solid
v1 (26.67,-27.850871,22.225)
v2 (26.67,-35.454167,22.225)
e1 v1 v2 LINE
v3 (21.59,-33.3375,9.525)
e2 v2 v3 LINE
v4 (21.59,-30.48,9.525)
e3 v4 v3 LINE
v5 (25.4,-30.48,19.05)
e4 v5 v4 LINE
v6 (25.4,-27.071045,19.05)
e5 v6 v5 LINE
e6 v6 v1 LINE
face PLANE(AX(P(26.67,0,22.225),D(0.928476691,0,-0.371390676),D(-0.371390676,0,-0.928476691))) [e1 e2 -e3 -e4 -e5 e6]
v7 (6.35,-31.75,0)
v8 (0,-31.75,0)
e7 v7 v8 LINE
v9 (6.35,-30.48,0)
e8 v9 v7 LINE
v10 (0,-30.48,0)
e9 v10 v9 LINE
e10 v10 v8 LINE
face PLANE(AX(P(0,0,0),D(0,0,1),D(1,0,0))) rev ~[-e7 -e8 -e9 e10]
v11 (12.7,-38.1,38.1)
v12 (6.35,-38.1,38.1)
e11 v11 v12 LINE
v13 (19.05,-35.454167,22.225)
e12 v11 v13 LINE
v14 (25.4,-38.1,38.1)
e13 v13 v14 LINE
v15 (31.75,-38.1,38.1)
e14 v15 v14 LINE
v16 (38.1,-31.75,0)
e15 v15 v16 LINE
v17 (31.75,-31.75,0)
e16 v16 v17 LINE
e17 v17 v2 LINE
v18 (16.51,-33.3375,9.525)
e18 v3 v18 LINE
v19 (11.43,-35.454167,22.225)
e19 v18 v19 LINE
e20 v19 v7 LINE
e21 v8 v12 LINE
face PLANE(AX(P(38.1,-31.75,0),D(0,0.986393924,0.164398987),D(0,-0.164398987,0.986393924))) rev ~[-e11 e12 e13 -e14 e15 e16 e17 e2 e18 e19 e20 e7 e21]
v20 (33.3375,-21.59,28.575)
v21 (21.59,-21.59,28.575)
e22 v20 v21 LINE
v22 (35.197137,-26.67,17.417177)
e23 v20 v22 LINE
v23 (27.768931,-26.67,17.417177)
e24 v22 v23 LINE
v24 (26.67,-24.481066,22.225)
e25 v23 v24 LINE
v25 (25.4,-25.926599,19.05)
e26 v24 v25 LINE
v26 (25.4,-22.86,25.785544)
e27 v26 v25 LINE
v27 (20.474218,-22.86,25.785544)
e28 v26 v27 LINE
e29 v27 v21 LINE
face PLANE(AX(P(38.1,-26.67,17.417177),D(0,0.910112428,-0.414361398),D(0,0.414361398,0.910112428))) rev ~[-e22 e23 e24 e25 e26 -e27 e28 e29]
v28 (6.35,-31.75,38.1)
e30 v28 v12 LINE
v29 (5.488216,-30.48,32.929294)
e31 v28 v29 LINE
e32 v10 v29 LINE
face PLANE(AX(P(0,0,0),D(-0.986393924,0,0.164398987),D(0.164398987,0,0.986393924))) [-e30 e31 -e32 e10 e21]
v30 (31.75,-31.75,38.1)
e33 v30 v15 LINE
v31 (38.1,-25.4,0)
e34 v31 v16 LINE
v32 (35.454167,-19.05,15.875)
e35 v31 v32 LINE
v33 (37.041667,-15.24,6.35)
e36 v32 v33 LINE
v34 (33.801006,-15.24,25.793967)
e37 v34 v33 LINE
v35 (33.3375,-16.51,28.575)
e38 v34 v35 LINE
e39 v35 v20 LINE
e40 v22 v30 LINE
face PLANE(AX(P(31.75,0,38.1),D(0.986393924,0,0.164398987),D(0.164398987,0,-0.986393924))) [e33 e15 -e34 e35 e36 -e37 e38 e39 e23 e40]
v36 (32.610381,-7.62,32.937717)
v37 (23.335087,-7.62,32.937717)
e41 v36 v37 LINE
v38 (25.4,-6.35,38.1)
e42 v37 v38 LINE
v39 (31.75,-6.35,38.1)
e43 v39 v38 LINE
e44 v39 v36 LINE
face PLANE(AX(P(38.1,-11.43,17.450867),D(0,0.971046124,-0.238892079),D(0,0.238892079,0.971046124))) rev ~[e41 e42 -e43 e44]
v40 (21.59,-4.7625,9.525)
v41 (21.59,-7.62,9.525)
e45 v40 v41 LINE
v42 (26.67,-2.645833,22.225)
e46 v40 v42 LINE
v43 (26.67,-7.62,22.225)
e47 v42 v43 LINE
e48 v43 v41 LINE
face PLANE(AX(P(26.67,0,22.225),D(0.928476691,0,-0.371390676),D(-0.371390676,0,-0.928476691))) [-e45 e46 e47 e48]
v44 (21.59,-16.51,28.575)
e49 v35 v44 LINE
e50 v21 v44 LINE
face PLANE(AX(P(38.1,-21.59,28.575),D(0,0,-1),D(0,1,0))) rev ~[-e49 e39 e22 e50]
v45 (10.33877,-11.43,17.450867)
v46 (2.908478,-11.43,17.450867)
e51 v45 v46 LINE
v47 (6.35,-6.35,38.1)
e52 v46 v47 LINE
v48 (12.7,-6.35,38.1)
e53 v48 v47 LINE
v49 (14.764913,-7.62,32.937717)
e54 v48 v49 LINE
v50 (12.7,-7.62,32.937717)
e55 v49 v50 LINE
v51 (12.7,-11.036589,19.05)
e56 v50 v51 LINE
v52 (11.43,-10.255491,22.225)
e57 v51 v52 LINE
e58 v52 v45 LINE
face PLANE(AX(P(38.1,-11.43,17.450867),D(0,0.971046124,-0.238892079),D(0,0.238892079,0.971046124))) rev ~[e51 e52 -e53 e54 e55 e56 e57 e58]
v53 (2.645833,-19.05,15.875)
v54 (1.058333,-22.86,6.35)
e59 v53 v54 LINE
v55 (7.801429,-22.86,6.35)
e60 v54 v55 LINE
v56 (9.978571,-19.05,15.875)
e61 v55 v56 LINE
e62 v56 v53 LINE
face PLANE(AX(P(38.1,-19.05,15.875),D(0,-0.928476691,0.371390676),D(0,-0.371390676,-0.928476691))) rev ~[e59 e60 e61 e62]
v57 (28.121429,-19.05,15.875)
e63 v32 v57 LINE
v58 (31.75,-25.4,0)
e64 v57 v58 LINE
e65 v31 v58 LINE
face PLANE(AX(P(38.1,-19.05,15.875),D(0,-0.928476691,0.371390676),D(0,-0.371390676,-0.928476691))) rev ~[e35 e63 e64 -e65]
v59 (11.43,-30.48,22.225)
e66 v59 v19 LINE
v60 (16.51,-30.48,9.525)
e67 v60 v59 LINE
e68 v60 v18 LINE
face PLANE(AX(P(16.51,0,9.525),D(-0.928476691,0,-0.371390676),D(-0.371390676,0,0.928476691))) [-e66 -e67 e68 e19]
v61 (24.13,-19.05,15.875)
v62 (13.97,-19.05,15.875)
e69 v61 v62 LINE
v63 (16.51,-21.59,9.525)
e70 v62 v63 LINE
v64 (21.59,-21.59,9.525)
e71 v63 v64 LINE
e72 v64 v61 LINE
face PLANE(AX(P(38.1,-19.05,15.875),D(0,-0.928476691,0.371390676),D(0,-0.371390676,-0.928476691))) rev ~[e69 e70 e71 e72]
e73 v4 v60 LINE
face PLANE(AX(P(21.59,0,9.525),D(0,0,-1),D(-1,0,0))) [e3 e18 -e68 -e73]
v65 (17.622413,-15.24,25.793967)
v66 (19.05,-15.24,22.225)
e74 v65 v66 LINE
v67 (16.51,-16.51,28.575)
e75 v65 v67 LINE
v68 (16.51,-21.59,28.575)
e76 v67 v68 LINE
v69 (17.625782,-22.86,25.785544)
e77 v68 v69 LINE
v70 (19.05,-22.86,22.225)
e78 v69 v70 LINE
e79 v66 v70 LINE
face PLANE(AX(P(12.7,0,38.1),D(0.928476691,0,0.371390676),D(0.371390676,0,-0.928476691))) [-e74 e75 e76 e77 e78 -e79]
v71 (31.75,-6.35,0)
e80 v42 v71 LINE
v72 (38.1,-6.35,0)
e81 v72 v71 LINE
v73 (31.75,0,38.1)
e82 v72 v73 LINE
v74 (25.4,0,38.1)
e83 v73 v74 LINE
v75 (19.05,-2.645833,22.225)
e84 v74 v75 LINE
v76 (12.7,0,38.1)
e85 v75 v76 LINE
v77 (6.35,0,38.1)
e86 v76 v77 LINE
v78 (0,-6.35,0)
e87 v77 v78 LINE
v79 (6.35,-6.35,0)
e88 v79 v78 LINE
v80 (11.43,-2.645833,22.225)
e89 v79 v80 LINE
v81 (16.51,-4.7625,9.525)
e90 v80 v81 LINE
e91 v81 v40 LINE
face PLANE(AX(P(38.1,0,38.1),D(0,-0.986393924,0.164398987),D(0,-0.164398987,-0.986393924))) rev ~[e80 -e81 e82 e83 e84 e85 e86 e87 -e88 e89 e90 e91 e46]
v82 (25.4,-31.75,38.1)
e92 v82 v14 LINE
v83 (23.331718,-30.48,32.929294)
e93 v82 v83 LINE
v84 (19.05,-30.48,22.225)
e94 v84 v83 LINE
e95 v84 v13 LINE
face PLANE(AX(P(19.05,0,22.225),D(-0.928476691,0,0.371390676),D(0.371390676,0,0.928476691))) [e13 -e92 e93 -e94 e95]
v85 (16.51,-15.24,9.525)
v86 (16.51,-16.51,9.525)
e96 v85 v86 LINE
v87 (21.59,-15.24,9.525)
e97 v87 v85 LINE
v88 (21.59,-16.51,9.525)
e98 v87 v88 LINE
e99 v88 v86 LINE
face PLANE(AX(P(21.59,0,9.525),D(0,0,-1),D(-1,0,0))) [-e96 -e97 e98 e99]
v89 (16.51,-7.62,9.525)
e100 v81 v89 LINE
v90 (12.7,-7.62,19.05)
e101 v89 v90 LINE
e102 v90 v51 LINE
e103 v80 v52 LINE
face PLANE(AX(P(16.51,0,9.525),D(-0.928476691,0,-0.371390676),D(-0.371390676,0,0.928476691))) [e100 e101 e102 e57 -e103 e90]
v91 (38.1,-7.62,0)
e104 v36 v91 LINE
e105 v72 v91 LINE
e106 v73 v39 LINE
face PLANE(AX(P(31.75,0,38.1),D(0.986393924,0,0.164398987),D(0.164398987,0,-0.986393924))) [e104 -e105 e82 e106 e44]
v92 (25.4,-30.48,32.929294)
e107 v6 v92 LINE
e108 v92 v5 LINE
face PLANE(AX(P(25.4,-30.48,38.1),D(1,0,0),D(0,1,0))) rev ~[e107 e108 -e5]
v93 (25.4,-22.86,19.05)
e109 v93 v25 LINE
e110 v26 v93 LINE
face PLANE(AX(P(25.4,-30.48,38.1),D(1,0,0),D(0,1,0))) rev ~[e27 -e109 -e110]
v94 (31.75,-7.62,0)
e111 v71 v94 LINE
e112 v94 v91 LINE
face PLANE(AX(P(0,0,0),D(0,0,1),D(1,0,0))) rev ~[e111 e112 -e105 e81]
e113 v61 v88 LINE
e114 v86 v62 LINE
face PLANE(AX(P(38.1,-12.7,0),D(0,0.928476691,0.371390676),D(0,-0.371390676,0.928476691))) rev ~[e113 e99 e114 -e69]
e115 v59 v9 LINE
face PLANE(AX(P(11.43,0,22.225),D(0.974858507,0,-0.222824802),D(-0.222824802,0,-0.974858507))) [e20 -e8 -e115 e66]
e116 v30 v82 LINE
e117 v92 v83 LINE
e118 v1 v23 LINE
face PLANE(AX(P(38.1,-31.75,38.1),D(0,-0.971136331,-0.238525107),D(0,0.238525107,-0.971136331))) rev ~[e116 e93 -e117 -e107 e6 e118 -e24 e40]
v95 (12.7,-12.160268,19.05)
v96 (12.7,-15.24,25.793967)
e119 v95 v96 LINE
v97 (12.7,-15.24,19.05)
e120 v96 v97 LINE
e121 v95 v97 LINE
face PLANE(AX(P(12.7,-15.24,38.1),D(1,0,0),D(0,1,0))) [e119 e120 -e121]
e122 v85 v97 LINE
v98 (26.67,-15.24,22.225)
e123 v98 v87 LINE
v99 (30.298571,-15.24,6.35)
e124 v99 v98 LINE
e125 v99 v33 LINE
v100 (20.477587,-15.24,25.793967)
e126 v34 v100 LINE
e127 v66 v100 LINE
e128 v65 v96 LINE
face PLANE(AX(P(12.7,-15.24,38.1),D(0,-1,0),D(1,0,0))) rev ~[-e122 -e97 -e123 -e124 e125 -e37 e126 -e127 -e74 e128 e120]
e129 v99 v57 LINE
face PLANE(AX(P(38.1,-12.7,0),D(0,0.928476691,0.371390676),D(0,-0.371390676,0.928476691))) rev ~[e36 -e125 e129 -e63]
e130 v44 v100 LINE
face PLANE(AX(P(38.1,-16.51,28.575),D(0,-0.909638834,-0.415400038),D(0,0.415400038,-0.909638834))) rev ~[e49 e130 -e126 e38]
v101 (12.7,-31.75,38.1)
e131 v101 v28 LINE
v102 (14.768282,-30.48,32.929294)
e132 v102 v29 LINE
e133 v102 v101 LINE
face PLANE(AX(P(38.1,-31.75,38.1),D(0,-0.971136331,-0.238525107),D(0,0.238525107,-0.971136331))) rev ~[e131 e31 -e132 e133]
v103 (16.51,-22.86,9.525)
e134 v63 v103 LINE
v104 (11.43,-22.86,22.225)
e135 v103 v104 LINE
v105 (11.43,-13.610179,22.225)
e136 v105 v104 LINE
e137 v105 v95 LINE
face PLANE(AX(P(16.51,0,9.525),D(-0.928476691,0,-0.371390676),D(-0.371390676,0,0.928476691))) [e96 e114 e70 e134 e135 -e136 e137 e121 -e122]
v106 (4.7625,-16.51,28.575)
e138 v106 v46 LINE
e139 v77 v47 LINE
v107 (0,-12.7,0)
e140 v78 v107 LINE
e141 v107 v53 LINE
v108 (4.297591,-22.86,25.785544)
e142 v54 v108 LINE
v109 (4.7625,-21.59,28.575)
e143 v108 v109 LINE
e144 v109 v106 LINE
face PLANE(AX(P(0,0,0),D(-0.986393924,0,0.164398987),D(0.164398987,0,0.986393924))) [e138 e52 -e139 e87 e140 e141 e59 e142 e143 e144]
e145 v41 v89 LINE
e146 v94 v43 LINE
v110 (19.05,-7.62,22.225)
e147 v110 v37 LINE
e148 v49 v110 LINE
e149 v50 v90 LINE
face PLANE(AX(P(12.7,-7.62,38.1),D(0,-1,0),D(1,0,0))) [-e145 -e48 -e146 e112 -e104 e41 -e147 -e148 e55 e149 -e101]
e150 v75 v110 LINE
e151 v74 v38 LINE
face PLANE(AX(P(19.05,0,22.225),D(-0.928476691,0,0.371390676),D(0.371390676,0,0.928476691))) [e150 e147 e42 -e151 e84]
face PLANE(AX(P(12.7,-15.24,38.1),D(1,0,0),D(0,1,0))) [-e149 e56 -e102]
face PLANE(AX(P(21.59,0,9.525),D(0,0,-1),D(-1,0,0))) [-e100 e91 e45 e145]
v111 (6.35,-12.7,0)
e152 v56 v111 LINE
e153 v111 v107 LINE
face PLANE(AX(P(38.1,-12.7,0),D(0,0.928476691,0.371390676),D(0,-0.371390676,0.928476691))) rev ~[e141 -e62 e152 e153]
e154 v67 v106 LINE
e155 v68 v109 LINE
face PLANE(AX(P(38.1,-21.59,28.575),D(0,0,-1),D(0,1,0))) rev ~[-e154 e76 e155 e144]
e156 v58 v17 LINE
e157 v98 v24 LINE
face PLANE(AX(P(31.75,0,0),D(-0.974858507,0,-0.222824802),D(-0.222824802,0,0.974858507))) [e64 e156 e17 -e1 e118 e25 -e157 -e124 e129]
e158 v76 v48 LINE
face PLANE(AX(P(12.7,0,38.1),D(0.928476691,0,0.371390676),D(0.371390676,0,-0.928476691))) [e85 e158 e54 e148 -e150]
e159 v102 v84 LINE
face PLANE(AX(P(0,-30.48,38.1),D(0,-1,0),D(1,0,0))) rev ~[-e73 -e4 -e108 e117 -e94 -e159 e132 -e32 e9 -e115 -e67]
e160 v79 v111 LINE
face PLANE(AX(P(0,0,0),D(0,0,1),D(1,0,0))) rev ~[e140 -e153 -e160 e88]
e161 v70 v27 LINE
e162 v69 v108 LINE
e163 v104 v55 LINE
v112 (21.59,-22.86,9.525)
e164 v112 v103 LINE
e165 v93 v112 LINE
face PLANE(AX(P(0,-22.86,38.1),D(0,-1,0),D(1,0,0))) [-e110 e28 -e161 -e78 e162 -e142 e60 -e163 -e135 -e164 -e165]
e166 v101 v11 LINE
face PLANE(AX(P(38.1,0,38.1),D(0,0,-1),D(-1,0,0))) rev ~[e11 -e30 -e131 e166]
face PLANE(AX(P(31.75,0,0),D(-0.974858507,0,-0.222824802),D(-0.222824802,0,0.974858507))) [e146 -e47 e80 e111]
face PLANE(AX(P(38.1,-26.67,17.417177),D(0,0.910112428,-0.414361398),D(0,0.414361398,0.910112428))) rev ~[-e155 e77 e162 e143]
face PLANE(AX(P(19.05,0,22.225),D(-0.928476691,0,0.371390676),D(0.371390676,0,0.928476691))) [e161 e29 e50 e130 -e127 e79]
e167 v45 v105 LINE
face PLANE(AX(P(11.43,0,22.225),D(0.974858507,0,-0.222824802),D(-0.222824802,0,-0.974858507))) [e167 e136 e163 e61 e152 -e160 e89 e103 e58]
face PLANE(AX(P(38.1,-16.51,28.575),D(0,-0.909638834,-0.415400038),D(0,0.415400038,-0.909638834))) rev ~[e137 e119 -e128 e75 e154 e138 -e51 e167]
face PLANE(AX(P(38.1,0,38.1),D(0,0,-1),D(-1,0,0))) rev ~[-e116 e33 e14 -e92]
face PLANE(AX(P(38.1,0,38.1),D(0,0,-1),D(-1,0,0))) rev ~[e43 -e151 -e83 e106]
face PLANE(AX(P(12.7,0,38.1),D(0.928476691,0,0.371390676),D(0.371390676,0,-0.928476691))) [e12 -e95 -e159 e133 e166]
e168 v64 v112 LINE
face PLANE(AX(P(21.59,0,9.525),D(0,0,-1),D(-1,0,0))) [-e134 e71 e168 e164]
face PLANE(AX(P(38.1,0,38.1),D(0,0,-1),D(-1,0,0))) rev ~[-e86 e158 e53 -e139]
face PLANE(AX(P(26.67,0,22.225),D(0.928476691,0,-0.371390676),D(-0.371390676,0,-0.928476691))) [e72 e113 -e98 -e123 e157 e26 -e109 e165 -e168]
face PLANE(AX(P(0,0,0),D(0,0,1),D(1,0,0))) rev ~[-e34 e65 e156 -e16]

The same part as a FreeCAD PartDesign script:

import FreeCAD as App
import Part
import Sketcher
from FreeCAD import Vector
Q = App.Units.Quantity

doc = App.newDocument("Part")
body = doc.addObject("PartDesign::Body", "Body")

# Sketch on XZ plane
sketch1 = body.newObject("Sketcher::SketchObject", "Sketch")
sketch1.AttachmentSupport = (doc.getObject("XZ_Plane"), [""])
sketch1.MapMode = "FlatFace"
sketch1.addGeometry([
    Part.LineSegment(Vector(0, 0, 0), Vector(38, 0, 0)),
    Part.LineSegment(Vector(38, 0, 0), Vector(38, 38, 0)),
    Part.LineSegment(Vector(38, 38, 0), Vector(0, 38, 0)),
    Part.LineSegment(Vector(0, 38, 0), Vector(0, 0, 0)),
], False)
sketch1.addConstraint([
    Sketcher.Constraint("Coincident", 0, 2, 1, 1),
    Sketcher.Constraint("Coincident", 1, 2, 2, 1),
    Sketcher.Constraint("Coincident", 2, 2, 3, 1),
    Sketcher.Constraint("Coincident", 3, 2, 0, 1),
    Sketcher.Constraint("Horizontal", 0),
    Sketcher.Constraint("Vertical", 1),
    Sketcher.Constraint("Horizontal", 2),
    Sketcher.Constraint("Vertical", 3),
    Sketcher.Constraint("Coincident", 3, 2, -1, 1),
    Sketcher.Constraint("Equal", 2, 1),
    Sketcher.Constraint("DistanceX", 0, 1, 0, 2, Q("1.5 in")),
])
pad1 = body.newObject("PartDesign::Pad", "Pad")
pad1.Profile = sketch1
pad1.Length = Q("1.5 in")

# Sketch on YZ plane
sketch2 = body.newObject("Sketcher::SketchObject", "Sketch001")
sketch2.AttachmentSupport = (doc.getObject("YZ_Plane"), [""])
sketch2.MapMode = "FlatFace"
sketch2.AttachmentOffset = App.Placement(Vector(0, 0, 1.5 * 25.4), App.Rotation())
sketch2.addGeometry([
    Part.LineSegment(Vector(-32, 0, 0), Vector(-38, 38, 0)),  # 0
    Part.LineSegment(Vector(-38, 38, 0), Vector(-38, 0, 0)),  # 1
    Part.LineSegment(Vector(-38, 0, 0), Vector(-32, 0, 0)),  # 2
    Part.LineSegment(Vector(-11, 17, 0), Vector(-6, 38, 0)),  # 3
    Part.LineSegment(Vector(-6, 38, 0), Vector(-32, 38, 0)),  # 4
    Part.LineSegment(Vector(-32, 38, 0), Vector(-27, 17, 0)),  # 5
    Part.LineSegment(Vector(-27, 17, 0), Vector(-22, 29, 0)),  # 6
    Part.LineSegment(Vector(-22, 29, 0), Vector(-17, 29, 0)),  # 7
    Part.LineSegment(Vector(-17, 29, 0), Vector(-11, 17, 0)),  # 8
    Part.LineSegment(Vector(-25, 0, 0), Vector(-13, 0, 0)),  # 9
    Part.LineSegment(Vector(-13, 0, 0), Vector(-19, 16, 0)),  # 10
    Part.LineSegment(Vector(-19, 16, 0), Vector(-25, 0, 0)),  # 11
    Part.LineSegment(Vector(-6, 0, 0), Vector(0, 0, 0)),  # 12
    Part.LineSegment(Vector(0, 0, 0), Vector(0, 38, 0)),  # 13
    Part.LineSegment(Vector(0, 38, 0), Vector(-6, 0, 0)),  # 14
], False)
sketch2.addConstraint([
    Sketcher.Constraint("Coincident", 0, 2, 1, 1),
    Sketcher.Constraint("Coincident", 1, 2, 2, 1),
    Sketcher.Constraint("Coincident", 2, 2, 0, 1),
    Sketcher.Constraint("Coincident", 3, 2, 4, 1),
    Sketcher.Constraint("Coincident", 4, 2, 5, 1),
    Sketcher.Constraint("Coincident", 5, 2, 6, 1),
    Sketcher.Constraint("Coincident", 6, 2, 7, 1),
    Sketcher.Constraint("Coincident", 7, 2, 8, 1),
    Sketcher.Constraint("Coincident", 8, 2, 3, 1),
    Sketcher.Constraint("Coincident", 9, 2, 10, 1),
    Sketcher.Constraint("Coincident", 10, 2, 11, 1),
    Sketcher.Constraint("Coincident", 11, 2, 9, 1),
    Sketcher.Constraint("Coincident", 12, 2, 13, 1),
    Sketcher.Constraint("Coincident", 13, 2, 14, 1),
    Sketcher.Constraint("Coincident", 14, 2, 12, 1),
    Sketcher.Constraint("Vertical", 1),
    Sketcher.Constraint("Horizontal", 2),
    Sketcher.Constraint("Horizontal", 4),
    Sketcher.Constraint("Horizontal", 7),
    Sketcher.Constraint("Horizontal", 9),
    Sketcher.Constraint("Horizontal", 12),
    Sketcher.Constraint("Vertical", 13),
    Sketcher.Constraint("Coincident", 12, 2, -1, 1),
    Sketcher.Constraint("PointOnObject", 1, 2, -1),
    Sketcher.Constraint("PointOnObject", 9, 2, -1),
    Sketcher.Constraint("Horizontal", 0, 2, 3, 2),
    Sketcher.Constraint("Horizontal", 4, 2, 13, 2),
    Sketcher.Constraint("Vertical", 2, 2, 4, 2),
    Sketcher.Constraint("Vertical", 3, 2, 14, 2),
    Sketcher.Constraint("Equal", 2, 12),
    Sketcher.Constraint("Equal", 10, 11),
    Sketcher.Constraint("DistanceX", 4, 2, 4, 1, Q("1 in")),
    Sketcher.Constraint("DistanceX", 7, 1, 7, 2, Q("0.2 in")),
    Sketcher.Constraint("DistanceX", 9, 1, 9, 2, Q("0.5 in")),
    Sketcher.Constraint("DistanceY", 1, 2, 1, 1, Q("1.5 in")),
    Sketcher.Constraint("DistanceX", 11, 2, -1, 1, Q("1 in")),
    Sketcher.Constraint("DistanceX", 1, 2, 9, 2, Q("1 in")),
    Sketcher.Constraint("DistanceX", 2, 2, 5, 2, Q("0.2 in")),
    Sketcher.Constraint("DistanceX", 5, 2, 6, 2, Q("0.2 in")),
    Sketcher.Constraint("DistanceX", 7, 2, 8, 2, Q("0.2 in")),
    Sketcher.Constraint("DistanceY", 10, 2, 6, 2, Q("0.5 in")),
    Sketcher.Constraint("DistanceY", -1, 1, 6, 2, Q("1.125 in")),
    Sketcher.Constraint("Distance", 5, Q("21.297548 mm")),
    Sketcher.Constraint("DistanceY", 5, 2, 8, 2, Q("0.03369 mm")),
])
pocket1 = body.newObject("PartDesign::Pocket", "Pocket")
pocket1.Profile = sketch2
pocket1.Length = Q("1.5 in")

# Sketch on XZ plane
sketch3 = body.newObject("Sketcher::SketchObject", "Sketch002")
sketch3.AttachmentSupport = (doc.getObject("XZ_Plane"), [""])
sketch3.MapMode = "FlatFace"
sketch3.addGeometry([
    Part.LineSegment(Vector(32, 38, 0), Vector(38, 0, 0)),  # 0
    Part.LineSegment(Vector(38, 0, 0), Vector(38, 38, 0)),  # 1
    Part.LineSegment(Vector(38, 38, 0), Vector(32, 38, 0)),  # 2
    Part.LineSegment(Vector(25, 38, 0), Vector(13, 38, 0)),  # 3
    Part.LineSegment(Vector(13, 38, 0), Vector(19, 22, 0)),  # 4
    Part.LineSegment(Vector(19, 22, 0), Vector(25, 38, 0)),  # 5
    Part.LineSegment(Vector(0, 38, 0), Vector(0, 0, 0)),  # 6
    Part.LineSegment(Vector(0, 0, 0), Vector(6, 38, 0)),  # 7
    Part.LineSegment(Vector(6, 38, 0), Vector(0, 38, 0)),  # 8
    Part.LineSegment(Vector(11, 22, 0), Vector(6, 0, 0)),  # 9
    Part.LineSegment(Vector(6, 0, 0), Vector(32, 0, 0)),  # 10
    Part.LineSegment(Vector(32, 0, 0), Vector(27, 22, 0)),  # 11
    Part.LineSegment(Vector(27, 22, 0), Vector(22, 10, 0)),  # 12
    Part.LineSegment(Vector(22, 10, 0), Vector(17, 10, 0)),  # 13
    Part.LineSegment(Vector(17, 10, 0), Vector(11, 22, 0)),  # 14
], False)
sketch3.addConstraint([
    Sketcher.Constraint("Coincident", 0, 2, 1, 1),
    Sketcher.Constraint("Coincident", 1, 2, 2, 1),
    Sketcher.Constraint("Coincident", 2, 2, 0, 1),
    Sketcher.Constraint("Coincident", 3, 2, 4, 1),
    Sketcher.Constraint("Coincident", 4, 2, 5, 1),
    Sketcher.Constraint("Coincident", 5, 2, 3, 1),
    Sketcher.Constraint("Coincident", 6, 2, 7, 1),
    Sketcher.Constraint("Coincident", 7, 2, 8, 1),
    Sketcher.Constraint("Coincident", 8, 2, 6, 1),
    Sketcher.Constraint("Coincident", 9, 2, 10, 1),
    Sketcher.Constraint("Coincident", 10, 2, 11, 1),
    Sketcher.Constraint("Coincident", 11, 2, 12, 1),
    Sketcher.Constraint("Coincident", 12, 2, 13, 1),
    Sketcher.Constraint("Coincident", 13, 2, 14, 1),
    Sketcher.Constraint("Coincident", 14, 2, 9, 1),
    Sketcher.Constraint("Vertical", 1),
    Sketcher.Constraint("Horizontal", 2),
    Sketcher.Constraint("Horizontal", 3),
    Sketcher.Constraint("Vertical", 6),
    Sketcher.Constraint("Horizontal", 8),
    Sketcher.Constraint("Horizontal", 10),
    Sketcher.Constraint("Horizontal", 13),
    Sketcher.Constraint("Coincident", 6, 2, -1, 1),
    Sketcher.Constraint("PointOnObject", 0, 2, -1),
    Sketcher.Constraint("PointOnObject", 9, 2, -1),
    Sketcher.Constraint("Parallel", 5, 12),
    Sketcher.Constraint("Parallel", 4, 14),
    Sketcher.Constraint("Horizontal", 2, 2, 3, 2),
    Sketcher.Constraint("Horizontal", 5, 2, 7, 2),
    Sketcher.Constraint("Horizontal", 4, 2, 11, 2),
    Sketcher.Constraint("Horizontal", 11, 2, 14, 2),
    Sketcher.Constraint("Vertical", 7, 2, 9, 2),
    Sketcher.Constraint("Vertical", 2, 2, 10, 2),
    Sketcher.Constraint("Equal", 2, 8),
    Sketcher.Constraint("Equal", 4, 5),
    Sketcher.Constraint("Equal", 9, 11),
    Sketcher.Constraint("DistanceX", 10, 1, 10, 2, Q("1 in")),
    Sketcher.Constraint("DistanceX", 3, 2, 3, 1, Q("0.5 in")),
    Sketcher.Constraint("DistanceX", 13, 2, 13, 1, Q("0.2 in")),
    Sketcher.Constraint("DistanceY", 1, 1, 1, 2, Q("1.5 in")),
    Sketcher.Constraint("DistanceX", -1, 1, 5, 2, Q("1 in")),
    Sketcher.Constraint("DistanceX", 3, 2, 1, 2, Q("1 in")),
    Sketcher.Constraint("DistanceX", 4, 2, 11, 2, Q("0.3 in")),
    Sketcher.Constraint("DistanceY", 12, 2, 4, 2, Q("0.5 in")),
])
pocket2 = body.newObject("PartDesign::Pocket", "Pocket001")
pocket2.Profile = sketch3
pocket2.Length = Q("1.5 in")
pocket2.Reversed = True

# Sketch on XY plane
sketch4 = body.newObject("Sketcher::SketchObject", "Sketch003")
sketch4.AttachmentSupport = (doc.getObject("XY_Plane"), [""])
sketch4.MapMode = "FlatFace"
sketch4.AttachmentOffset = App.Placement(Vector(0, 0, 1.5 * 25.4), App.Rotation())
sketch4.addGeometry([
    Part.LineSegment(Vector(0, -23, 0), Vector(0, -30, 0)),  # 0
    Part.LineSegment(Vector(0, -30, 0), Vector(25, -30, 0)),  # 1
    Part.LineSegment(Vector(25, -30, 0), Vector(25, -23, 0)),  # 2
    Part.LineSegment(Vector(25, -23, 0), Vector(0, -23, 0)),  # 3
    Part.LineSegment(Vector(13, -8, 0), Vector(13, -15, 0)),  # 4
    Part.LineSegment(Vector(13, -15, 0), Vector(38, -15, 0)),  # 5
    Part.LineSegment(Vector(38, -15, 0), Vector(38, -8, 0)),  # 6
    Part.LineSegment(Vector(38, -8, 0), Vector(13, -8, 0)),  # 7
], False)
sketch4.addConstraint([
    Sketcher.Constraint("Coincident", 0, 2, 1, 1),
    Sketcher.Constraint("Coincident", 1, 2, 2, 1),
    Sketcher.Constraint("Coincident", 2, 2, 3, 1),
    Sketcher.Constraint("Coincident", 3, 2, 0, 1),
    Sketcher.Constraint("Coincident", 4, 2, 5, 1),
    Sketcher.Constraint("Coincident", 5, 2, 6, 1),
    Sketcher.Constraint("Coincident", 6, 2, 7, 1),
    Sketcher.Constraint("Coincident", 7, 2, 4, 1),
    Sketcher.Constraint("Vertical", 0),
    Sketcher.Constraint("Horizontal", 1),
    Sketcher.Constraint("Vertical", 2),
    Sketcher.Constraint("Horizontal", 3),
    Sketcher.Constraint("Vertical", 4),
    Sketcher.Constraint("Horizontal", 5),
    Sketcher.Constraint("Vertical", 6),
    Sketcher.Constraint("Horizontal", 7),
    Sketcher.Constraint("PointOnObject", 0, 2, -2),
    Sketcher.Constraint("Equal", 3, 5),
    Sketcher.Constraint("Equal", 2, 4),
    Sketcher.Constraint("DistanceX", 1, 1, 1, 2, Q("1 in")),
    Sketcher.Constraint("DistanceY", 0, 2, 0, 1, Q("0.3 in")),
    Sketcher.Constraint("DistanceY", 0, 2, -1, 1, Q("1.2 in")),
    Sketcher.Constraint("DistanceX", -1, 1, 4, 2, Q("0.5 in")),
    Sketcher.Constraint("DistanceY", 4, 2, -1, 1, Q("0.6 in")),
])
pocket3 = body.newObject("PartDesign::Pocket", "Pocket002")
pocket3.Profile = sketch4
pocket3.Length = Q("1.5 in")

doc.recompute()
